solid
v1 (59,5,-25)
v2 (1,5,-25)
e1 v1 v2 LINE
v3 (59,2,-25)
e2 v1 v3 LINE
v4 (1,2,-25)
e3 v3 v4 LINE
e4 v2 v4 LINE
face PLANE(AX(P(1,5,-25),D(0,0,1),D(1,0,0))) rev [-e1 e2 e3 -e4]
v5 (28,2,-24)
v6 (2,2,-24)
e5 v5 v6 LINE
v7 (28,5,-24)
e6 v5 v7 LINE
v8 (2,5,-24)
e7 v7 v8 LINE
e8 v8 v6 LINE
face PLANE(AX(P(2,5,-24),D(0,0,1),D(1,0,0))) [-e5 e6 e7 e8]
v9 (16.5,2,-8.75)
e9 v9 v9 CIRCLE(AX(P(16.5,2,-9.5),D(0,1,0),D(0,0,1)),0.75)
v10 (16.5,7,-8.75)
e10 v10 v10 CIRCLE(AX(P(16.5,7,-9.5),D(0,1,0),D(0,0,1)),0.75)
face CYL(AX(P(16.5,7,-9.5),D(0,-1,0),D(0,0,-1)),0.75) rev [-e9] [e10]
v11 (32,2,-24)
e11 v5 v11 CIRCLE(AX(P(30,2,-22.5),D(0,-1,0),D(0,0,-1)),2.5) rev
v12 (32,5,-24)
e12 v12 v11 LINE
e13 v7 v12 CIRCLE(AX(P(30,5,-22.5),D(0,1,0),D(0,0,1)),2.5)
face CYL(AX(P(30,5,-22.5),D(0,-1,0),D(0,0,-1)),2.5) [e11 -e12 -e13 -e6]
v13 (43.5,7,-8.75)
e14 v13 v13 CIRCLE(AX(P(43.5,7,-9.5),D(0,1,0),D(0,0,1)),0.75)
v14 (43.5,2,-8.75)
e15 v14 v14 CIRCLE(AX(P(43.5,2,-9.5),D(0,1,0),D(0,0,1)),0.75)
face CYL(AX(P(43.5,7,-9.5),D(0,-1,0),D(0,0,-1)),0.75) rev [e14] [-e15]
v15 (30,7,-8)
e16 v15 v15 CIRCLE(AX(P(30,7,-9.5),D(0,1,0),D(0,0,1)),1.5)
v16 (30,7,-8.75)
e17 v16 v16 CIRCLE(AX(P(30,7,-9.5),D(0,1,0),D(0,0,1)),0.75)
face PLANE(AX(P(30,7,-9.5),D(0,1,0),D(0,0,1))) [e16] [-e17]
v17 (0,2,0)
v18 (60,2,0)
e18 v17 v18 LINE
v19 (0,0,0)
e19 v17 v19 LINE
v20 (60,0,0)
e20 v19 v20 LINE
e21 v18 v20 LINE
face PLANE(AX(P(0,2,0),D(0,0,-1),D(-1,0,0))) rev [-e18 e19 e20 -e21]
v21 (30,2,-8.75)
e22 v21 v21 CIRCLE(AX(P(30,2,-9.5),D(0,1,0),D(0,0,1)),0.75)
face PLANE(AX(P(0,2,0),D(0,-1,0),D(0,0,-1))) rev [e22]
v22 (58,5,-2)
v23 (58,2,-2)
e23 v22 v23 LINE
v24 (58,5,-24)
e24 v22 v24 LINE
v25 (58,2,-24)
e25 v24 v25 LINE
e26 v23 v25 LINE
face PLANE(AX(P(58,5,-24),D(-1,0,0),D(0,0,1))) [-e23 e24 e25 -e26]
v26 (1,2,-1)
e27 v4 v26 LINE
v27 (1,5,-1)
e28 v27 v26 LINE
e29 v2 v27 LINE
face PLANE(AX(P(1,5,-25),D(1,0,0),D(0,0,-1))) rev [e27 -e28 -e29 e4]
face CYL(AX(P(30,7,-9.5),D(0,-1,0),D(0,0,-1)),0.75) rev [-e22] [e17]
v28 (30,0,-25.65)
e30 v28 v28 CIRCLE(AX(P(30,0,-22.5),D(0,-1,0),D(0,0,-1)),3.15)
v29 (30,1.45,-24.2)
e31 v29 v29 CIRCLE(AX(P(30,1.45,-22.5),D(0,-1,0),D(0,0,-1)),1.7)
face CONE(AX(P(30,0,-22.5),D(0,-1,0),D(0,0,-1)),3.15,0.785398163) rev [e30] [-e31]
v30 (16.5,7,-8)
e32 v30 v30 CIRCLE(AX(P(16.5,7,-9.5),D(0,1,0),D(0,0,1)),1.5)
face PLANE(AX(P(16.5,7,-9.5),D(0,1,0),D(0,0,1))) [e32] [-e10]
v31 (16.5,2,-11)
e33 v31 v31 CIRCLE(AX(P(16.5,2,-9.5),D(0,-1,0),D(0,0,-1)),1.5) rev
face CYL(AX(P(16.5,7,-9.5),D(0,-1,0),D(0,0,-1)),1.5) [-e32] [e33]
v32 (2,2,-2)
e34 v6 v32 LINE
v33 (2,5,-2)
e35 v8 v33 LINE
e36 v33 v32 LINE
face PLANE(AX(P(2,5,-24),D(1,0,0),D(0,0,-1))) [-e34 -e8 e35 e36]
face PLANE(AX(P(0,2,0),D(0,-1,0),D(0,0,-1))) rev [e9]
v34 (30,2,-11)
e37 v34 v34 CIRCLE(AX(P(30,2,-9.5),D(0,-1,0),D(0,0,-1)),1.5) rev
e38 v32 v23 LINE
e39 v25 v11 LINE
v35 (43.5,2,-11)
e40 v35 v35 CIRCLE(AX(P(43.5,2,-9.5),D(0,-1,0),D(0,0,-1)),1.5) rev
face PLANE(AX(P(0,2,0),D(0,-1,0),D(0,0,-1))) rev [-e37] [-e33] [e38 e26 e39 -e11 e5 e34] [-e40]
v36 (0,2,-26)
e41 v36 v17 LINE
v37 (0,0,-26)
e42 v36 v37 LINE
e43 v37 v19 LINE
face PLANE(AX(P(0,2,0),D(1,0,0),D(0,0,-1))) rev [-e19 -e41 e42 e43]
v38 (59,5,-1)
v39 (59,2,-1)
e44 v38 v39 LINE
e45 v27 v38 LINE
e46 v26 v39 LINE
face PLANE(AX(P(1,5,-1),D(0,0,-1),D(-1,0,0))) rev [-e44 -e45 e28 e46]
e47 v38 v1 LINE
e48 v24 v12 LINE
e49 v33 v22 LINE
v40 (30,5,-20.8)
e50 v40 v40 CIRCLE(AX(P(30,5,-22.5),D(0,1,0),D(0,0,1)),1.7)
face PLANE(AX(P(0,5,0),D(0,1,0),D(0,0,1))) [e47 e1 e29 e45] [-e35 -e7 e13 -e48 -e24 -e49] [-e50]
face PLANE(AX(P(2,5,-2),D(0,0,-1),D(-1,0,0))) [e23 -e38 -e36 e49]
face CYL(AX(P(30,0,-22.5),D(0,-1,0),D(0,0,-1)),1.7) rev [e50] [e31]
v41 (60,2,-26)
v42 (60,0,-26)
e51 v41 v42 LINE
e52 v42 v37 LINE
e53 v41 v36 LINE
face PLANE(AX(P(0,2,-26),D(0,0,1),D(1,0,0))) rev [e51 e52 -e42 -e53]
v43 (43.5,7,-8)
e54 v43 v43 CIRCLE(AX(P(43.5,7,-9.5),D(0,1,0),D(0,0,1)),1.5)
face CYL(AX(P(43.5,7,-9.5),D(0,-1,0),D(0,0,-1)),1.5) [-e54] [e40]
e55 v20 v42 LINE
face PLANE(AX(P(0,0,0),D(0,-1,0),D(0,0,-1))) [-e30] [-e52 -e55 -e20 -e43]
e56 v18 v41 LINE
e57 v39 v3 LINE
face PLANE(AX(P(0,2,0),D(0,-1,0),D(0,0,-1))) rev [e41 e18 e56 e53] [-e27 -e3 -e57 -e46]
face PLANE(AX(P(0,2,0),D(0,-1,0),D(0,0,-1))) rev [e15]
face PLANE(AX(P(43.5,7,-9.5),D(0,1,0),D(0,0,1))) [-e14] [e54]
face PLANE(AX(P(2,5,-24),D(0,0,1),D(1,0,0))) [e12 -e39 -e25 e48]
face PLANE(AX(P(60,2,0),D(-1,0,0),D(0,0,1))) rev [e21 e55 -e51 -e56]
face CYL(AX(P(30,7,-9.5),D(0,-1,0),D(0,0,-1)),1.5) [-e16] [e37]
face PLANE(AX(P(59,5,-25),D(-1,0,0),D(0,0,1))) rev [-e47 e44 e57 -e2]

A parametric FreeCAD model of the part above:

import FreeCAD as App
import Part
import Sketcher
from FreeCAD import Vector
Q = App.Units.Quantity


def add_polygon(sketch, points):
    """Adds a closed chain of lines whose ends are joined by coincident constraints."""
    first, n = sketch.GeometryCount, len(points)
    for a, b in zip(points, points[1:] + points[:1]):
        sketch.addGeometry(Part.LineSegment(App.Vector(*a, 0), App.Vector(*b, 0)), False)
    for i in range(n):
        sketch.addConstraint(Sketcher.Constraint("Coincident", first + i, 2, first + (i + 1) % n, 1))

doc = App.newDocument("Part")
body = doc.addObject("PartDesign::Body", "Body")

# Sketch on XZ plane
sketch1 = body.newObject("Sketcher::SketchObject", "Sketch")
sketch1.AttachmentSupport = (doc.getObject("XZ_Plane"), [""])
sketch1.MapMode = "FlatFace"
add_polygon(sketch1, [(0, -26), (0, 0), (60, 0), (60, -26)])  # lines 0-3
sketch1.addConstraint([
    Sketcher.Constraint("Vertical", 0),
    Sketcher.Constraint("Horizontal", 1),
    Sketcher.Constraint("Vertical", 2),
    Sketcher.Constraint("Horizontal", 3),
    Sketcher.Constraint("Coincident", 0, 2, -1, 1),
    Sketcher.Constraint("DistanceX", 1, 1, 1, 2, Q("60 mm")),
    Sketcher.Constraint("DistanceY", 0, 1, 0, 2, Q("26 mm")),
])
pad1 = body.newObject("PartDesign::Pad", "Pad")
pad1.Profile = sketch1
pad1.Length = 2
pad1.Reversed = True

# Sketch on XZ plane
sketch2 = body.newObject("Sketcher::SketchObject", "Sketch001")
sketch2.AttachmentSupport = (doc.getObject("XZ_Plane"), [""])
sketch2.MapMode = "FlatFace"
sketch2.AttachmentOffset = App.Placement(Vector(0, 0, -2), App.Rotation())
add_polygon(sketch2, [(1, -25), (1, -1), (59, -1), (59, -25)])  # lines 0-3
add_polygon(sketch2, [(58, -2), (2, -2), (2, -24), (58, -24)])  # lines 4-7
sketch2.addConstraint([
    Sketcher.Constraint("Vertical", 0),
    Sketcher.Constraint("Horizontal", 1),
    Sketcher.Constraint("Vertical", 2),
    Sketcher.Constraint("Horizontal", 3),
    Sketcher.Constraint("Horizontal", 4),
    Sketcher.Constraint("Vertical", 5),
    Sketcher.Constraint("Horizontal", 6),
    Sketcher.Constraint("Vertical", 7),
    Sketcher.Constraint("DistanceX", 1, 1, 1, 2, Q("58 mm")),
    Sketcher.Constraint("DistanceX", 4, 2, 4, 1, Q("56 mm")),
    Sketcher.Constraint("DistanceY", 0, 1, 0, 2, Q("24 mm")),
    Sketcher.Constraint("DistanceY", 5, 2, 5, 1, Q("22 mm")),
    Sketcher.Constraint("DistanceX", -1, 1, 0, 2, Q("1 mm")),
    Sketcher.Constraint("DistanceY", 0, 2, -1, 1, Q("1 mm")),
    Sketcher.Constraint("DistanceX", -1, 1, 4, 2, Q("2 mm")),
    Sketcher.Constraint("DistanceY", 4, 2, -1, 1, Q("2 mm")),
])
pad2 = body.newObject("PartDesign::Pad", "Pad001")
pad2.Profile = sketch2
pad2.Length = 3
pad2.Reversed = True

# Sketch on XZ plane
sketch3 = body.newObject("Sketcher::SketchObject", "Sketch002")
sketch3.AttachmentSupport = (doc.getObject("XZ_Plane"), [""])
sketch3.MapMode = "FlatFace"
sketch3.AttachmentOffset = App.Placement(Vector(0, 0, -2), App.Rotation())
sketch3.addGeometry([
    Part.Circle(Vector(16.5, -9.5, 0), Vector(0, 0, 1), 1.5),  # 0
    Part.Circle(Vector(16.5, -9.5, 0), Vector(0, 0, 1), 0.8),  # 1
    Part.Circle(Vector(30, -9.5, 0), Vector(0, 0, 1), 1.5),  # 2
    Part.Circle(Vector(30, -9.5, 0), Vector(0, 0, 1), 0.8),  # 3
    Part.Circle(Vector(43.5, -9.5, 0), Vector(0, 0, 1), 1.5),  # 4
    Part.Circle(Vector(43.5, -9.5, 0), Vector(0, 0, 1), 0.8),  # 5
], False)
sketch3.addConstraint([
    Sketcher.Constraint("Coincident", 1, 3, 0, 3),
    Sketcher.Constraint("Coincident", 3, 3, 2, 3),
    Sketcher.Constraint("Coincident", 5, 3, 4, 3),
    Sketcher.Constraint("Equal", 0, 2),
    Sketcher.Constraint("Equal", 1, 3),
    Sketcher.Constraint("Equal", 2, 4),
    Sketcher.Constraint("Equal", 3, 5),
    Sketcher.Constraint("Horizontal", 1, 3, 2, 3),
    Sketcher.Constraint("Horizontal", 3, 3, 4, 3),
    Sketcher.Constraint("Diameter", 0, Q("3 mm")),
    Sketcher.Constraint("Diameter", 1, Q("1.5 mm")),
    Sketcher.Constraint("DistanceX", -1, 1, 2, 3, Q("30 mm")),
    Sketcher.Constraint("DistanceX", 0, 3, 4, 3, Q("27 mm")),
    Sketcher.Constraint("DistanceX", -1, 1, 0, 3, Q("16.5 mm")),
    Sketcher.Constraint("DistanceY", 0, 3, -1, 1, Q("9.5 mm")),
])
pad3 = body.newObject("PartDesign::Pad", "Pad002")
pad3.Profile = sketch3
pad3.Length = 5
pad3.Reversed = True

# Sketch on XZ plane
sketch4 = body.newObject("Sketcher::SketchObject", "Sketch003")
sketch4.AttachmentSupport = (doc.getObject("XZ_Plane"), [""])
sketch4.MapMode = "FlatFace"
sketch4.AttachmentOffset = App.Placement(Vector(0, 0, -2), App.Rotation())
sketch4.addGeometry(Part.Circle(Vector(30, -22.5, 0), Vector(0, 0, 1), 2.5), False)
sketch4.addConstraint([
    Sketcher.Constraint("Diameter", 0, Q("5 mm")),
    Sketcher.Constraint("DistanceX", -1, 1, 0, 3, Q("30 mm")),
    Sketcher.Constraint("DistanceY", 0, 3, -1, 1, Q("22.5 mm")),
])
pad4 = body.newObject("PartDesign::Pad", "Pad003")
pad4.Profile = sketch4
pad4.Length = 3
pad4.Reversed = True

# Sketch on XZ plane
sketch5 = body.newObject("Sketcher::SketchObject", "Sketch004")
sketch5.AttachmentSupport = (doc.getObject("XZ_Plane"), [""])
sketch5.MapMode = "FlatFace"
sketch5.addGeometry(Part.Circle(Vector(30, -22.5, 0), Vector(0, 0, 1), 1.7), False)
sketch5.addConstraint([
    Sketcher.Constraint("Diameter", 0, Q("3.4 mm")),
    Sketcher.Constraint("DistanceX", -1, 1, 0, 3, Q("30 mm")),
    Sketcher.Constraint("DistanceY", 0, 3, -1, 1, Q("22.5 mm")),
])
doc.recompute()
hole = body.newObject("PartDesign::Hole", "Hole")
hole.Profile = sketch5
hole.ThreadType = "None"
hole.Diameter = 3.4
hole.DepthType = "ThroughAll"
hole.HoleCutType = "Countersink"
hole.HoleCutDiameter = 6.3
hole.HoleCutCountersinkAngle = 90

doc.recompute()
